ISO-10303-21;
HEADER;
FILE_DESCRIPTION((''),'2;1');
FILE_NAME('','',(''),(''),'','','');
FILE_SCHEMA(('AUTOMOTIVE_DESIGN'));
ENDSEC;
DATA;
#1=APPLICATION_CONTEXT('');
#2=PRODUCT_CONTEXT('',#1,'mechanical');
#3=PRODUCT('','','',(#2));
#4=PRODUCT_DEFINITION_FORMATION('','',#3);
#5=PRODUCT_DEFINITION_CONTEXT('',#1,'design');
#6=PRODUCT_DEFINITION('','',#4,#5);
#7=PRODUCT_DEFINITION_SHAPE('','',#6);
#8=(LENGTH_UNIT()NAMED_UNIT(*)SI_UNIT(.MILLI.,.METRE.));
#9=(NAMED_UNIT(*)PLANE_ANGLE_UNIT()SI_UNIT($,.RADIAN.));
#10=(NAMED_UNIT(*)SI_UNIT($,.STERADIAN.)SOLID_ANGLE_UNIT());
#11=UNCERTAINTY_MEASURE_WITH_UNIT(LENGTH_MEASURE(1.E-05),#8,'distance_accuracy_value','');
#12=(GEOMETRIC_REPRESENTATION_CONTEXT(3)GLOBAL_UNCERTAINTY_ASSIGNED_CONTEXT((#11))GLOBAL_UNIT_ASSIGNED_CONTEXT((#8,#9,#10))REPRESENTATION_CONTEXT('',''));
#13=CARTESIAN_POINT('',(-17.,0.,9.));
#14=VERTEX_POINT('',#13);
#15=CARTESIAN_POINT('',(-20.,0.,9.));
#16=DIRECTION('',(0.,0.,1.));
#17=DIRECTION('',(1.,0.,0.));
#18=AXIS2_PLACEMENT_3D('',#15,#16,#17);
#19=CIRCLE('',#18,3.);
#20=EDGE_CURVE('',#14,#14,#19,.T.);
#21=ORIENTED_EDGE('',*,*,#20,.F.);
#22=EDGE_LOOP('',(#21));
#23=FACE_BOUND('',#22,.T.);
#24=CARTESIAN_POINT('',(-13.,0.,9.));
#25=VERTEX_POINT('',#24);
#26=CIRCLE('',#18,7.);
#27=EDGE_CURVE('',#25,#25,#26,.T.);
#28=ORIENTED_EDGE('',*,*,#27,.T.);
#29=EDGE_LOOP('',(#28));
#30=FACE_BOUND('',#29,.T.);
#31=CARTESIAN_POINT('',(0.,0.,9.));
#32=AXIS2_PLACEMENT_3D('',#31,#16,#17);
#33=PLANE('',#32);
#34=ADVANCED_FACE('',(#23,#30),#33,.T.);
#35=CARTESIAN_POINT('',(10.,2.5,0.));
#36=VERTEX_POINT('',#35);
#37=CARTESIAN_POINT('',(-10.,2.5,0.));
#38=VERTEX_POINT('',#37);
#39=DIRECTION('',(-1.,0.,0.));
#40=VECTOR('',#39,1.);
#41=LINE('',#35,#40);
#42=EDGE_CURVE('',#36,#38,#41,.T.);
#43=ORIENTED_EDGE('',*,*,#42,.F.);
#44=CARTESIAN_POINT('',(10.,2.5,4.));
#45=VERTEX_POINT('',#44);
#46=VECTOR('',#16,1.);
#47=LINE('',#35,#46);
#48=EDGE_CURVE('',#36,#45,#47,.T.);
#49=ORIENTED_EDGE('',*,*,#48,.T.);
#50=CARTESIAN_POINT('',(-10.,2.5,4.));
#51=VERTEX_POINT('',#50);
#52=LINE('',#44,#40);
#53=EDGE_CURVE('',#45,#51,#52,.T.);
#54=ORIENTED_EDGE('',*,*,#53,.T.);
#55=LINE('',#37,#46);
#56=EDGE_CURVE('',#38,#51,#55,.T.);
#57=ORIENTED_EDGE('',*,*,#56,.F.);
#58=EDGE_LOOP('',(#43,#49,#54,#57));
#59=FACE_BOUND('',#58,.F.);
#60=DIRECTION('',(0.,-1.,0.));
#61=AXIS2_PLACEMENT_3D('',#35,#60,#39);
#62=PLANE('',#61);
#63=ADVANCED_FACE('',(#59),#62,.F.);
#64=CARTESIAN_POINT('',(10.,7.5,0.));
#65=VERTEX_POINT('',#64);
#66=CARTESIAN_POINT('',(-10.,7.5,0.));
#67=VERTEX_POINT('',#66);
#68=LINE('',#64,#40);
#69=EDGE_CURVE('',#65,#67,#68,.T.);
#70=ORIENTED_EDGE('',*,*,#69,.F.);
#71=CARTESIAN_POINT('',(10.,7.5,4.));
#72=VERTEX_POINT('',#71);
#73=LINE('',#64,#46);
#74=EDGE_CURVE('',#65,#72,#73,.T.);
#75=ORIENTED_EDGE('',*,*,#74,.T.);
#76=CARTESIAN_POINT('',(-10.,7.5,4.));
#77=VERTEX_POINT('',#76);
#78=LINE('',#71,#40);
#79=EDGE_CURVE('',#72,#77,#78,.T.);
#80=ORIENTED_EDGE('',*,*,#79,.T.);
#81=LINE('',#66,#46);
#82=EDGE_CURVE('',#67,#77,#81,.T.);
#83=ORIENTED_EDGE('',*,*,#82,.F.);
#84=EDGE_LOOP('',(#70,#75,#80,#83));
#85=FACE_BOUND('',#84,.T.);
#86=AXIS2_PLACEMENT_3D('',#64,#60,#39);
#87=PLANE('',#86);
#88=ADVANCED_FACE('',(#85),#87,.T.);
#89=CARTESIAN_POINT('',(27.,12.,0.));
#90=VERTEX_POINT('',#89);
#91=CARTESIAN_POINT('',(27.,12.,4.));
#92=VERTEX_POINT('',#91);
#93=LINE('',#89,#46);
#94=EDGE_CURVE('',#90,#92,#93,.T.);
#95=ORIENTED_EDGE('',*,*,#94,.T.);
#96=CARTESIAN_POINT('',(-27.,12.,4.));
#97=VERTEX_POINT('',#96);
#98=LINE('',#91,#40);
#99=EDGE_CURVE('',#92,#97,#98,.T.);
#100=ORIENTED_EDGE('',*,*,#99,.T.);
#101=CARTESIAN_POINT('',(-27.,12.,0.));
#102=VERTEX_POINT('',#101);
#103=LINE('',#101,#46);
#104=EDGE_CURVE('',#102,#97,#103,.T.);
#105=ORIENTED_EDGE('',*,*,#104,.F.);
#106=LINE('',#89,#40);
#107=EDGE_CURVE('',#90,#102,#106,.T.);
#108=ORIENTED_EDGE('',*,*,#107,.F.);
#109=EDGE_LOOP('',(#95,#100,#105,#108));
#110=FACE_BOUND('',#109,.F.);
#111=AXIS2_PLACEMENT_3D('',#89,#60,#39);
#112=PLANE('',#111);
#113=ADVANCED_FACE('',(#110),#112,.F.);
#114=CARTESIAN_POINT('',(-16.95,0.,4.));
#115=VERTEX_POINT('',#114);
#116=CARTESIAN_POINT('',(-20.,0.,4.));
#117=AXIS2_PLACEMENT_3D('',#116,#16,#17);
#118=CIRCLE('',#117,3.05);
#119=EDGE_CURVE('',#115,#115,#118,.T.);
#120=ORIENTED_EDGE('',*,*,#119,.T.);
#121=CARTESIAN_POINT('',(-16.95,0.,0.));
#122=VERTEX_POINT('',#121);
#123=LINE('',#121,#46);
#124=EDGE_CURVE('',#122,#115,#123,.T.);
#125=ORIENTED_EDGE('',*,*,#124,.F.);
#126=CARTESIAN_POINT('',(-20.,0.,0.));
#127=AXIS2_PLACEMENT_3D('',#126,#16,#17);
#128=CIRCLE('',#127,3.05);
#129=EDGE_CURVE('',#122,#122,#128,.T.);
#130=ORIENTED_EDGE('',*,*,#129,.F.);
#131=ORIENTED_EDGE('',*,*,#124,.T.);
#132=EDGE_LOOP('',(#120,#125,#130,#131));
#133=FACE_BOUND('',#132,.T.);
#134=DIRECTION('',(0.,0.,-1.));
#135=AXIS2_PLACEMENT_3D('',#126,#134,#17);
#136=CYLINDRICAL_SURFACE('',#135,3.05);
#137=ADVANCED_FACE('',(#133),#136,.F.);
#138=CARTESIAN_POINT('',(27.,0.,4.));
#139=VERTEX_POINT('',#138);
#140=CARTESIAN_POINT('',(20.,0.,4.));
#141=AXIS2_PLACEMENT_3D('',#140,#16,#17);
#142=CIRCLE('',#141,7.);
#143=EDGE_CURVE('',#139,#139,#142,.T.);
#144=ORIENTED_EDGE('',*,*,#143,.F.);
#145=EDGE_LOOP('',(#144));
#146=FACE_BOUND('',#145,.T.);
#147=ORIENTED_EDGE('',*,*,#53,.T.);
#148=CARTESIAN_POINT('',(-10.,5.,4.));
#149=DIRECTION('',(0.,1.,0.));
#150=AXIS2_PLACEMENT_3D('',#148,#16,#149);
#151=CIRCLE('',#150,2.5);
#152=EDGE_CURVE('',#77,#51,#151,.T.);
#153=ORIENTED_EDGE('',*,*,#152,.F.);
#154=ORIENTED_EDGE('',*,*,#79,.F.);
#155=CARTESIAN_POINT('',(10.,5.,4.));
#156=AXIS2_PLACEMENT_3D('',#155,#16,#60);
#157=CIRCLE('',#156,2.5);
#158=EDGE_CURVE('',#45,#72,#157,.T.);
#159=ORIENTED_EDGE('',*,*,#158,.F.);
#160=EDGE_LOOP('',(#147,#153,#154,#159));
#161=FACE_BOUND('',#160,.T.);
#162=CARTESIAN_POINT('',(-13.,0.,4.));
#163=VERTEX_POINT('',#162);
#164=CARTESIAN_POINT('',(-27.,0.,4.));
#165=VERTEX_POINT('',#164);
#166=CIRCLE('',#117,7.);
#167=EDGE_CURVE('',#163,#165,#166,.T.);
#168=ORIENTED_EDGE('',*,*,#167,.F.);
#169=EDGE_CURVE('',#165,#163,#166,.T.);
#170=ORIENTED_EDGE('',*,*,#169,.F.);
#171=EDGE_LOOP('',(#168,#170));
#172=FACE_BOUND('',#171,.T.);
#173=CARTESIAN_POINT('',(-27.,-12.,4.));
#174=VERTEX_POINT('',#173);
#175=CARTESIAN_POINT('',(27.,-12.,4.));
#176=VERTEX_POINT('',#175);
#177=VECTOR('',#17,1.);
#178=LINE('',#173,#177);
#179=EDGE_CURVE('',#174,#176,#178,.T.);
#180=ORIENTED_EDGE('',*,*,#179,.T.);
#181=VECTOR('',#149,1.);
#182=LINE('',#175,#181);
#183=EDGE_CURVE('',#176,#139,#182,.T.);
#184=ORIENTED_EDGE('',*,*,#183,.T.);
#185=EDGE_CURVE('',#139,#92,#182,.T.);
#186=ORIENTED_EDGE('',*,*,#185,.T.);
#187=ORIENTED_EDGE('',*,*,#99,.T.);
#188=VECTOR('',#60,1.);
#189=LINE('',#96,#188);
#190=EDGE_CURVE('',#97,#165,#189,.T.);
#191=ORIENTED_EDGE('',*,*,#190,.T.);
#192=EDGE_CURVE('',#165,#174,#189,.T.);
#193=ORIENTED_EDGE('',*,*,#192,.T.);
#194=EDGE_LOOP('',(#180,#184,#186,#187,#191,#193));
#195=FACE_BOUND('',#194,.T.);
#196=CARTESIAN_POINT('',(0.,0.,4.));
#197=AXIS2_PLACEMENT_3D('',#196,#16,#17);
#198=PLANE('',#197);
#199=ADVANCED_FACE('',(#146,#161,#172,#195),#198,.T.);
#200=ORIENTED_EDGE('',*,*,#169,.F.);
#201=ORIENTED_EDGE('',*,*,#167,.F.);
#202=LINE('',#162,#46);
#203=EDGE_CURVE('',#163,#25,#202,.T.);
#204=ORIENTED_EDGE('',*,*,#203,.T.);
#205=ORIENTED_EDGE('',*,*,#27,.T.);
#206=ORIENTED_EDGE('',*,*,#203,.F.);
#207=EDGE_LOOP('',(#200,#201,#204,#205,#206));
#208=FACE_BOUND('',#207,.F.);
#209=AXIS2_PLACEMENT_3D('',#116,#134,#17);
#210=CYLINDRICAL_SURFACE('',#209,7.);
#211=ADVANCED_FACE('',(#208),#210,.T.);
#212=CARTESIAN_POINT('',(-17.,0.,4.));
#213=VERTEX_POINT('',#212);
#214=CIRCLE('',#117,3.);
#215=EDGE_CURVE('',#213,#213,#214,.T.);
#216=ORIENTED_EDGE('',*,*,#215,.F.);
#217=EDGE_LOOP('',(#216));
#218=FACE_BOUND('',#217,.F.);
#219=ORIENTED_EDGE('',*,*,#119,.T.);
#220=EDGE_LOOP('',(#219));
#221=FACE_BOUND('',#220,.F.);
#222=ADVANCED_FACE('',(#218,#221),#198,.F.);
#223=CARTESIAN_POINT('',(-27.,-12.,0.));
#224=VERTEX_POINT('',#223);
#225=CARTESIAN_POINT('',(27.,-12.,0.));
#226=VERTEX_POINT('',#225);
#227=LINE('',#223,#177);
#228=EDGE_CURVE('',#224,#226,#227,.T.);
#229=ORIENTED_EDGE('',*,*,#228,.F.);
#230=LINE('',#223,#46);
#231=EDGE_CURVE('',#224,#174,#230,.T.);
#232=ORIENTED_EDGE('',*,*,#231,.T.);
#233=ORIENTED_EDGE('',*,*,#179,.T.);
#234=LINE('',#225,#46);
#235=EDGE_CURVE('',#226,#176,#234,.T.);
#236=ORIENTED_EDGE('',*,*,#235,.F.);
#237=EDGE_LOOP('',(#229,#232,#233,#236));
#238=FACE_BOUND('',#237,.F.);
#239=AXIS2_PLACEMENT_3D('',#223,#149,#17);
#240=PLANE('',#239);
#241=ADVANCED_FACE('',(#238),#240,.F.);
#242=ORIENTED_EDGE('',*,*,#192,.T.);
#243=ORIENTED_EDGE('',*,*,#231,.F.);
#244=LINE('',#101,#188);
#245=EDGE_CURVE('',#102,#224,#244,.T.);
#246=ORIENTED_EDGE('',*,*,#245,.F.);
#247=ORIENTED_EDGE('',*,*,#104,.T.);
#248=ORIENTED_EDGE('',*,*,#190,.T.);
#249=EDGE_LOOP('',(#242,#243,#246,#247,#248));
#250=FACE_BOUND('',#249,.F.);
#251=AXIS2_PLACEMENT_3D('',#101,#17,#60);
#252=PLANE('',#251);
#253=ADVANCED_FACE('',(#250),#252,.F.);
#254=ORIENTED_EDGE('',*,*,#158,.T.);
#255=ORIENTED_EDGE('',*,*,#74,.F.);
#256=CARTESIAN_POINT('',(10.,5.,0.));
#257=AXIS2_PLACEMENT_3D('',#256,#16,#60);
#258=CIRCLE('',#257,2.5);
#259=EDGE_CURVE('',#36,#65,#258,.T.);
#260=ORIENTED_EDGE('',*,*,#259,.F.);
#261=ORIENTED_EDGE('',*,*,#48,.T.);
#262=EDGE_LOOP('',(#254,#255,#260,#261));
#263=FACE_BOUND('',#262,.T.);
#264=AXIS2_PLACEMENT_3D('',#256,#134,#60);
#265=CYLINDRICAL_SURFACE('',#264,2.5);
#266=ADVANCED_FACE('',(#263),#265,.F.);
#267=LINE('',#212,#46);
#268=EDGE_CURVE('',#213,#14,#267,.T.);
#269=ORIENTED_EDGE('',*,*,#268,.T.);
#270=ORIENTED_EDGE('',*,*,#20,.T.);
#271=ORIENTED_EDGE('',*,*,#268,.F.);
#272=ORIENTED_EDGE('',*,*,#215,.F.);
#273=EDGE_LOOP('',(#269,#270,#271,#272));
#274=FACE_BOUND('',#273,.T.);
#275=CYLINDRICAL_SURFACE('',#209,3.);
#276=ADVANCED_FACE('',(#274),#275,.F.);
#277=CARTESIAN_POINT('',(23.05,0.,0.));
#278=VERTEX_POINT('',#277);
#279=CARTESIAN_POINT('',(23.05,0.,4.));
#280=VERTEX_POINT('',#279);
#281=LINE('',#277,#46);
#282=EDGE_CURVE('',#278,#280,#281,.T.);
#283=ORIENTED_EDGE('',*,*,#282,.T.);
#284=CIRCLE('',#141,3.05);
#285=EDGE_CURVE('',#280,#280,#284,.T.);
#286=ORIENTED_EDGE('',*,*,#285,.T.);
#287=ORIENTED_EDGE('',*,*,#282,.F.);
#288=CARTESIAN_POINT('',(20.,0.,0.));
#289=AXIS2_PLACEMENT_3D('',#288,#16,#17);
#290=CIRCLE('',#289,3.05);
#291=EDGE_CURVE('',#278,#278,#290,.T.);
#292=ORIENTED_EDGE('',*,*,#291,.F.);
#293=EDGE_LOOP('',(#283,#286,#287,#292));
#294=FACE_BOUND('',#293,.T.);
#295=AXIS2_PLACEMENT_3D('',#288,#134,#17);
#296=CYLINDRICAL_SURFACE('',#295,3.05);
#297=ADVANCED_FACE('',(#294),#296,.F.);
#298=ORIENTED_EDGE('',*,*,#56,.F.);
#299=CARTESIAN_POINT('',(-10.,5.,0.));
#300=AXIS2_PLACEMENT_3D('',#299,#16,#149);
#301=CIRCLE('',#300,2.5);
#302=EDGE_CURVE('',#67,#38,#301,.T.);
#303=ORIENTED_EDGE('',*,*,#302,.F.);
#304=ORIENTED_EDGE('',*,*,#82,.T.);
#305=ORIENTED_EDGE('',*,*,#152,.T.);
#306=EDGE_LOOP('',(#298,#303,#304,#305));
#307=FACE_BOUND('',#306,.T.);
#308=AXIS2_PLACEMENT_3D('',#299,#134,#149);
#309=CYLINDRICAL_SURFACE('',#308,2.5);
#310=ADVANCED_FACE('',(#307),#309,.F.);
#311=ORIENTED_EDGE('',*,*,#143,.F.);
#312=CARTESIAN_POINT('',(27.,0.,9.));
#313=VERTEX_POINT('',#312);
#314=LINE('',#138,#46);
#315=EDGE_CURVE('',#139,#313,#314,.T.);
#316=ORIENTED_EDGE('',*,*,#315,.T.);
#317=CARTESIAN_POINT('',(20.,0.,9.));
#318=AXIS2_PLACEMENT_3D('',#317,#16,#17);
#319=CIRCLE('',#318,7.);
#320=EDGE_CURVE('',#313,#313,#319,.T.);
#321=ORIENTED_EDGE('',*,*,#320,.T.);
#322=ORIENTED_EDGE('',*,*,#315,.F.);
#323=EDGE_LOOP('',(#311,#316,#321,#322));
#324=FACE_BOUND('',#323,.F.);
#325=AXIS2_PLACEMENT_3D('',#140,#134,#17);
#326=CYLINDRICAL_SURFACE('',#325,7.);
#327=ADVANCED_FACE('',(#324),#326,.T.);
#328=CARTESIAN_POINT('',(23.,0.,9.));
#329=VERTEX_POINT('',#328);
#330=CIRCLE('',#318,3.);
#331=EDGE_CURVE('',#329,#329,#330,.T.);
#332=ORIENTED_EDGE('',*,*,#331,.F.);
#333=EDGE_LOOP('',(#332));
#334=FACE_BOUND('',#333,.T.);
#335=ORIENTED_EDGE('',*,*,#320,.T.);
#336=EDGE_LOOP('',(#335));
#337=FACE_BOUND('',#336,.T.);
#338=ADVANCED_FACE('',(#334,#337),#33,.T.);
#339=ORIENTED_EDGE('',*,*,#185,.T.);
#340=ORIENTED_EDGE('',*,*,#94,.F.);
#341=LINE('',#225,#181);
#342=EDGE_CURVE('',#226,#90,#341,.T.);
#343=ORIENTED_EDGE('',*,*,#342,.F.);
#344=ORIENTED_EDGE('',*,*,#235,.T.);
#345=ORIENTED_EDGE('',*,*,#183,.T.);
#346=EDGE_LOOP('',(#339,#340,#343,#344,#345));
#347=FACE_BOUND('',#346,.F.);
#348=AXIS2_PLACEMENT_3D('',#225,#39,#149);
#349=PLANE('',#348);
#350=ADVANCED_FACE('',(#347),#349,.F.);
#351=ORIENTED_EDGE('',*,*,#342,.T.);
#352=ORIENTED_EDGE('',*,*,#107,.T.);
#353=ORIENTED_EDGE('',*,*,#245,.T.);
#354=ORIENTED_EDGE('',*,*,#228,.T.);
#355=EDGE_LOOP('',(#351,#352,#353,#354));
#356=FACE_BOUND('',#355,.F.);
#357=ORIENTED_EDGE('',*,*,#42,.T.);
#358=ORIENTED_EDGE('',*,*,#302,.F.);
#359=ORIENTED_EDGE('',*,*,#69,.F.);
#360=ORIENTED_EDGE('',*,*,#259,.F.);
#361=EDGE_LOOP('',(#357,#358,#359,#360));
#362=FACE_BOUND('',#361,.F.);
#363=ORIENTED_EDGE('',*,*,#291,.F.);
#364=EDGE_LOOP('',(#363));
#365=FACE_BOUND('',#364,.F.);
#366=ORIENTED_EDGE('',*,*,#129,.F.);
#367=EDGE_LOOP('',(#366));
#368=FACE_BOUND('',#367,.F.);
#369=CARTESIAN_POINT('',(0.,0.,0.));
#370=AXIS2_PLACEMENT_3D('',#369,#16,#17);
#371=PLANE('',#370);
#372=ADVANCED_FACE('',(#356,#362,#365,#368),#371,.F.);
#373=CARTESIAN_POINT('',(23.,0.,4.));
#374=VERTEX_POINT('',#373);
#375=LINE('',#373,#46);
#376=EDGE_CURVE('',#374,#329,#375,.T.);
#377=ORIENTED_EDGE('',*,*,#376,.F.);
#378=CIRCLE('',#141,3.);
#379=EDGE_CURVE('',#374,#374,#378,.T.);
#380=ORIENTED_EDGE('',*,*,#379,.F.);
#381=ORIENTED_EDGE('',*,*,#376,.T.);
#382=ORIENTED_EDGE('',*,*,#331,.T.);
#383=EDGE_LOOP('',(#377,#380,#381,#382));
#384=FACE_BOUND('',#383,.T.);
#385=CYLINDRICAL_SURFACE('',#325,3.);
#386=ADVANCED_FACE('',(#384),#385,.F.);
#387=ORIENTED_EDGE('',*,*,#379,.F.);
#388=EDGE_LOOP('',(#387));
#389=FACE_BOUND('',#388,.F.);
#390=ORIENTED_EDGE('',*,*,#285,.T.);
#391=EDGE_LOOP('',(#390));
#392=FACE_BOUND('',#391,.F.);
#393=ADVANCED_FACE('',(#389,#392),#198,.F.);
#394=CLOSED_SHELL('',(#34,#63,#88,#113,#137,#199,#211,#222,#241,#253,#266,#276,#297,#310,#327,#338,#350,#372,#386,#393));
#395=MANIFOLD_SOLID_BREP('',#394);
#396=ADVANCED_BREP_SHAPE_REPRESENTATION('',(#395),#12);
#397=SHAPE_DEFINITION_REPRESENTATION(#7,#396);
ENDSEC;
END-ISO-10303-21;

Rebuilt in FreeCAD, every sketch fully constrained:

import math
import FreeCAD as App
import Part
import Sketcher

doc = App.newDocument("Part")
params = doc.addObject("Spreadsheet::Sheet", "Params")
for row, (alias, value) in enumerate([
    ("sketch1_diameter", "14 mm"),
    ("sketch1_diameter2", "6 mm"),
    ("pad1_length", "5 mm"),
    ("sketch2_diameter", "6.1 mm"),
    ("sketch2_radius", "2.5 mm"),
    ("sketch2_width", "54 mm"),
    ("sketch2_width2", "20 mm"),
    ("sketch2_height", "24 mm"),
    ("pad2_length", "4 mm"),
], start=1):
    params.set(f"A{row}", alias)
    params.set(f"B{row}", "=" + value)
    params.setAlias(f"B{row}", alias)

body = doc.addObject("PartDesign::Body", "Body")
body.AllowCompound = True

# Sketch on XY plane
sketch1 = body.newObject("Sketcher::SketchObject", "Sketch")
sketch1.AttachmentSupport = (doc.getObject("XY_Plane"), [""])
sketch1.MapMode = "FlatFace"
sketch1.AttachmentOffset = App.Placement(App.Vector(0, 0, 4), App.Rotation())
sketch1.addGeometry([
    Part.Circle(App.Vector(-20, 0, 0), App.Vector(0, 0, 1), 7),
    Part.Circle(App.Vector(-20, 0, 0), App.Vector(0, 0, 1), 3),
    Part.Circle(App.Vector(20, 0, 0), App.Vector(0, 0, 1), 7),
    Part.Circle(App.Vector(20, 0, 0), App.Vector(0, 0, 1), 3),
], False)
sketch1.addConstraint([
    Sketcher.Constraint("Coincident", 1, 3, 0, 3),
    Sketcher.Constraint("Coincident", 3, 3, 2, 3),
    Sketcher.Constraint("Equal", 0, 2),
    Sketcher.Constraint("Equal", 1, 3),
    Sketcher.Constraint("Symmetric", 0, 3, 2, 3, -1, 1),
    Sketcher.Constraint("PointOnObject", 0, 3, -1),
    Sketcher.Constraint("Diameter", 0, 14.0),
    Sketcher.Constraint("Diameter", 1, 6.0),
    Sketcher.Constraint("DistanceX", 0, 3, -1, 1, 20.0),
])
sketch1.setExpression("Constraints[6]", "Params.sketch1_diameter")
sketch1.setExpression("Constraints[7]", "Params.sketch1_diameter2")
pad1 = body.newObject("PartDesign::Pad", "Pad")
pad1.Profile = sketch1
pad1.setExpression("Length", "Params.pad1_length")

# Sketch on XY plane
sketch2 = body.newObject("Sketcher::SketchObject", "Sketch001")
sketch2.AttachmentSupport = (doc.getObject("XY_Plane"), [""])
sketch2.MapMode = "FlatFace"
sketch2.addGeometry([
    Part.LineSegment(App.Vector(-27, 12, 0), App.Vector(-27, -12, 0)),  # 0
    Part.LineSegment(App.Vector(-27, -12, 0), App.Vector(27, -12, 0)),  # 1
    Part.LineSegment(App.Vector(27, -12, 0), App.Vector(27, 12, 0)),  # 2
    Part.LineSegment(App.Vector(27, 12, 0), App.Vector(-27, 12, 0)),  # 3
    Part.Circle(App.Vector(-20, 0, 0), App.Vector(0, 0, 1), 3),  # 4
    Part.ArcOfCircle(Part.Circle(App.Vector(-10, 5, 0), App.Vector(0, 0, 1), 2.5), math.radians(90), math.radians(270)),  # 5
    Part.LineSegment(App.Vector(-10, 7.5, 0), App.Vector(10, 7.5, 0)),  # 6
    Part.ArcOfCircle(Part.Circle(App.Vector(10, 5, 0), App.Vector(0, 0, 1), 2.5), math.radians(-90), math.radians(90)),  # 7
    Part.LineSegment(App.Vector(10, 2.5, 0), App.Vector(-10, 2.5, 0)),  # 8
    Part.Circle(App.Vector(20, 0, 0), App.Vector(0, 0, 1), 3),  # 9
], False)
sketch2.addConstraint([
    Sketcher.Constraint("Coincident", 0, 2, 1, 1),
    Sketcher.Constraint("Coincident", 1, 2, 2, 1),
    Sketcher.Constraint("Coincident", 2, 2, 3, 1),
    Sketcher.Constraint("Coincident", 3, 2, 0, 1),
    Sketcher.Constraint("Tangent", 5, 1, 6, 1),
    Sketcher.Constraint("Tangent", 6, 2, 7, 2),
    Sketcher.Constraint("Tangent", 7, 1, 8, 1),
    Sketcher.Constraint("Tangent", 8, 2, 5, 2),
    Sketcher.Constraint("Vertical", 0),
    Sketcher.Constraint("Horizontal", 1),
    Sketcher.Constraint("Vertical", 2),
    Sketcher.Constraint("Horizontal", 3),
    Sketcher.Constraint("Horizontal", 6),
    Sketcher.Constraint("Horizontal", 8),
    Sketcher.Constraint("Equal", 4, 9),
    Sketcher.Constraint("Symmetric", 4, 3, 9, 3, -1, 1),
    Sketcher.Constraint("Symmetric", 0, 2, 2, 2, -1, 1),
    Sketcher.Constraint("PointOnObject", 4, 3, -1),
    Sketcher.Constraint("Diameter", 4, 6.1),
    Sketcher.Constraint("Radius", 5, 2.5),
    Sketcher.Constraint("DistanceX", 1, 1, 1, 2, 54.0),
    Sketcher.Constraint("DistanceX", 6, 1, 6, 2, 20.0),
    Sketcher.Constraint("DistanceY", 0, 2, 0, 1, 24.0),
    Sketcher.Constraint("DistanceX", 4, 3, -1, 1, 20.0),
    Sketcher.Constraint("DistanceX", 5, 3, -1, 1, 10.0),
    Sketcher.Constraint("DistanceY", -1, 1, 7, 1, 2.5),
])
sketch2.setExpression("Constraints[18]", "Params.sketch2_diameter")
sketch2.setExpression("Constraints[19]", "Params.sketch2_radius")
sketch2.setExpression("Constraints[20]", "Params.sketch2_width")
sketch2.setExpression("Constraints[21]", "Params.sketch2_width2")
sketch2.setExpression("Constraints[22]", "Params.sketch2_height")
pad2 = body.newObject("PartDesign::Pad", "Pad001")
pad2.Profile = sketch2
pad2.setExpression("Length", "Params.pad2_length")

doc.recompute()
